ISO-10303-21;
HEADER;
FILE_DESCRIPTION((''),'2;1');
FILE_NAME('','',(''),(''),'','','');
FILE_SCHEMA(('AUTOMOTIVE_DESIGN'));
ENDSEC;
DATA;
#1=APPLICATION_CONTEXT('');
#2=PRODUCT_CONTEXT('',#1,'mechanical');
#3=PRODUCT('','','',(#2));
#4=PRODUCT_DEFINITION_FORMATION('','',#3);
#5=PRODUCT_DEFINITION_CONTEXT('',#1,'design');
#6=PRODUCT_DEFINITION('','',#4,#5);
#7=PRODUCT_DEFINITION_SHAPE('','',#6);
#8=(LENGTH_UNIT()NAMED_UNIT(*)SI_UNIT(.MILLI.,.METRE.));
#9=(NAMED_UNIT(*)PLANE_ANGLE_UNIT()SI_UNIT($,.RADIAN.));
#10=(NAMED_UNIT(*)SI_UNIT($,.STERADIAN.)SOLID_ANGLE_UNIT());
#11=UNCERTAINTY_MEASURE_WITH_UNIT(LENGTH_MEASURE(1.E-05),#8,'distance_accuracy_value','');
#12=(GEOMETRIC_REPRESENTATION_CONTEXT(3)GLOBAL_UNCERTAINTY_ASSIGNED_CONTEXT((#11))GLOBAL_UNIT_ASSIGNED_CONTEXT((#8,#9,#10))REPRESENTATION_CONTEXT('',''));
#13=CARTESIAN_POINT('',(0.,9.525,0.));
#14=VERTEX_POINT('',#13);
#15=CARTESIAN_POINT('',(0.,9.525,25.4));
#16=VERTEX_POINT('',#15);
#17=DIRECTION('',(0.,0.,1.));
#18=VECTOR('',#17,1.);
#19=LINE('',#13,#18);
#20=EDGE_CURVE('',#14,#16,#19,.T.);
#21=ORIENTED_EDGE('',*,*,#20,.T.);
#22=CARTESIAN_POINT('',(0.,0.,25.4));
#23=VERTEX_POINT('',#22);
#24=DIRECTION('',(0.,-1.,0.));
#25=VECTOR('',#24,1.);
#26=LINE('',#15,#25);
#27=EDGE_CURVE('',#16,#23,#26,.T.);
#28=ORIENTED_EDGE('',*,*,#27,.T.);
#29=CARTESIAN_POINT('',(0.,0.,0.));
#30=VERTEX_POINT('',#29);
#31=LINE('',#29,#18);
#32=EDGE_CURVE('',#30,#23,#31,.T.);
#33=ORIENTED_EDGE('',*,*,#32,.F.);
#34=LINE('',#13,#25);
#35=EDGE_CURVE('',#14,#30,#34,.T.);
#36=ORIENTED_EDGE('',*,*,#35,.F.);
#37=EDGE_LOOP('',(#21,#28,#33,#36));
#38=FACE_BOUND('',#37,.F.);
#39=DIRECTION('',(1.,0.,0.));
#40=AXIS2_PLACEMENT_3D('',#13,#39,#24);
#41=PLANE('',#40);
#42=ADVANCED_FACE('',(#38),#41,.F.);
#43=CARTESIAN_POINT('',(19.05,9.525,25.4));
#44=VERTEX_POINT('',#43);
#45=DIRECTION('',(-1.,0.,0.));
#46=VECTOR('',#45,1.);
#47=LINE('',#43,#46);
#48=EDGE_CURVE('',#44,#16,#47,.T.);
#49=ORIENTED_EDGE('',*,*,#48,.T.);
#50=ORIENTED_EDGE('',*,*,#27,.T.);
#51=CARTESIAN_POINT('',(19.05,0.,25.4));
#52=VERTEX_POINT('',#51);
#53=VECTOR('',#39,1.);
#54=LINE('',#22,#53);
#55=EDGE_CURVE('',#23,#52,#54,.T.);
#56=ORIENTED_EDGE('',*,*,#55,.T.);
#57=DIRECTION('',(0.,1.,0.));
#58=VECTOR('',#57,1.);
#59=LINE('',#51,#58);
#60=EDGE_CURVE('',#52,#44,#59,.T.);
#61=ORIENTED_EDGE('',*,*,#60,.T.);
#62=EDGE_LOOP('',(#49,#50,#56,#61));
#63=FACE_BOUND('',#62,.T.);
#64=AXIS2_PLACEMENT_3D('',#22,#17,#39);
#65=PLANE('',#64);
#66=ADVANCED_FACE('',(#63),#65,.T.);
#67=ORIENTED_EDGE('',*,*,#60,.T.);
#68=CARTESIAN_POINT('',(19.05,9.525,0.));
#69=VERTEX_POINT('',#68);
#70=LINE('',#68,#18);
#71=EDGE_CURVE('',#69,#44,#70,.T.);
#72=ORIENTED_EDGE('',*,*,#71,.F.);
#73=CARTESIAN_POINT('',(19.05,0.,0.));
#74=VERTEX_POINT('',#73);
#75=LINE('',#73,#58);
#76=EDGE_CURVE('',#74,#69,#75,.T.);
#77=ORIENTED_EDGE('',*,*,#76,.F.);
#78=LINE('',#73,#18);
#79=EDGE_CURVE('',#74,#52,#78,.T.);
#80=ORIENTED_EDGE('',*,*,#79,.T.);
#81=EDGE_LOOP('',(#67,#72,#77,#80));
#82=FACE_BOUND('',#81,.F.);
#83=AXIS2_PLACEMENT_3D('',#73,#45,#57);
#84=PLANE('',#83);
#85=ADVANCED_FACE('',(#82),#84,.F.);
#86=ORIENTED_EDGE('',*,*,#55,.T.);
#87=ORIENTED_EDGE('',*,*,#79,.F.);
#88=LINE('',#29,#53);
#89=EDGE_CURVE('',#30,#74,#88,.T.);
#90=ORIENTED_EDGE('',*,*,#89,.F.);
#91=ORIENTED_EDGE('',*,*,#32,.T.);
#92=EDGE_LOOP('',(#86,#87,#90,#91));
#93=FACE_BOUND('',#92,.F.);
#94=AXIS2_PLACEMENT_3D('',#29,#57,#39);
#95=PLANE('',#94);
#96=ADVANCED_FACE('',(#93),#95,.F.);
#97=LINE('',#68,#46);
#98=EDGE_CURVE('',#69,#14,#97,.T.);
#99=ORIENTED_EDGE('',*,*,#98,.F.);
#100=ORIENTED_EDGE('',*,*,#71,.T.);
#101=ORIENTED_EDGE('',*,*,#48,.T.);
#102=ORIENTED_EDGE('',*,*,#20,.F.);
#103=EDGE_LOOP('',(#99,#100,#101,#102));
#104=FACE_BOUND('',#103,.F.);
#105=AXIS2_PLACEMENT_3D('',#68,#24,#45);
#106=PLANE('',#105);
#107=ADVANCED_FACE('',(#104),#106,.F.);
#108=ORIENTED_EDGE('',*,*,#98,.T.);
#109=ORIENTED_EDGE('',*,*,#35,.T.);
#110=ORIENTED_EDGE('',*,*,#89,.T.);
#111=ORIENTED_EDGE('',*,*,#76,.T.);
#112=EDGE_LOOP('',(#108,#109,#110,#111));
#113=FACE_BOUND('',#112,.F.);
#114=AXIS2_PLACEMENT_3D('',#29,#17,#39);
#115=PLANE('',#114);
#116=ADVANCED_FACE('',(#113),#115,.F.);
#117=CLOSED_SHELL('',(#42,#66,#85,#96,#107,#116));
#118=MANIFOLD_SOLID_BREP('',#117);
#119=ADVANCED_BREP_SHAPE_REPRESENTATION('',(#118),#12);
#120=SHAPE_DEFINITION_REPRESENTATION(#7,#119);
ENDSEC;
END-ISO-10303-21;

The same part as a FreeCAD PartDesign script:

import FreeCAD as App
import Part
import Sketcher

V = App.Vector
Q = App.Units.Quantity


def add_polygon(sketch, points):
    """Adds a closed chain of lines whose ends are joined by coincident constraints."""
    first, n = sketch.GeometryCount, len(points)
    for a, b in zip(points, points[1:] + points[:1]):
        sketch.addGeometry(Part.LineSegment(App.Vector(*a, 0), App.Vector(*b, 0)), False)
    for i in range(n):
        sketch.addConstraint(Sketcher.Constraint("Coincident", first + i, 2, first + (i + 1) % n, 1))

doc = App.newDocument("Part")
params = doc.addObject("Spreadsheet::Sheet", "Params")
for row, (alias, value) in enumerate([
    ("sketch1_width", "0.75 in"),
    ("sketch1_height", "0.375 in"),
    ("pad1_length", "1 in"),
], start=1):
    params.set(f"A{row}", alias)
    params.set(f"B{row}", "=" + value)
    params.setAlias(f"B{row}", alias)

body = doc.addObject("PartDesign::Body", "Body")

sketch1 = body.newObject("Sketcher::SketchObject", "Sketch")
sketch1.AttachmentSupport = (doc.getObject("XY_Plane"), [""])
sketch1.MapMode = "FlatFace"
add_polygon(sketch1, [(0, 9.525), (0, 0), (19.05, 0), (19.05, 9.525)])
sketch1.addConstraint([
    Sketcher.Constraint("Vertical", 0),
    Sketcher.Constraint("Horizontal", 1),
    Sketcher.Constraint("Vertical", 2),
    Sketcher.Constraint("Horizontal", 3),
    Sketcher.Constraint("Coincident", 0, 2, -1, 1),
    Sketcher.Constraint("DistanceX", 1, 1, 1, 2, Q("0.75 in")),
    Sketcher.Constraint("DistanceY", 0, 2, 0, 1, Q("0.375 in")),
])
sketch1.setExpression("Constraints[9]", "Params.sketch1_width")
sketch1.setExpression("Constraints[10]", "Params.sketch1_height")
pad1 = body.newObject("PartDesign::Pad", "Pad")
pad1.Profile = sketch1
pad1.setExpression("Length", "Params.pad1_length")

doc.recompute()
